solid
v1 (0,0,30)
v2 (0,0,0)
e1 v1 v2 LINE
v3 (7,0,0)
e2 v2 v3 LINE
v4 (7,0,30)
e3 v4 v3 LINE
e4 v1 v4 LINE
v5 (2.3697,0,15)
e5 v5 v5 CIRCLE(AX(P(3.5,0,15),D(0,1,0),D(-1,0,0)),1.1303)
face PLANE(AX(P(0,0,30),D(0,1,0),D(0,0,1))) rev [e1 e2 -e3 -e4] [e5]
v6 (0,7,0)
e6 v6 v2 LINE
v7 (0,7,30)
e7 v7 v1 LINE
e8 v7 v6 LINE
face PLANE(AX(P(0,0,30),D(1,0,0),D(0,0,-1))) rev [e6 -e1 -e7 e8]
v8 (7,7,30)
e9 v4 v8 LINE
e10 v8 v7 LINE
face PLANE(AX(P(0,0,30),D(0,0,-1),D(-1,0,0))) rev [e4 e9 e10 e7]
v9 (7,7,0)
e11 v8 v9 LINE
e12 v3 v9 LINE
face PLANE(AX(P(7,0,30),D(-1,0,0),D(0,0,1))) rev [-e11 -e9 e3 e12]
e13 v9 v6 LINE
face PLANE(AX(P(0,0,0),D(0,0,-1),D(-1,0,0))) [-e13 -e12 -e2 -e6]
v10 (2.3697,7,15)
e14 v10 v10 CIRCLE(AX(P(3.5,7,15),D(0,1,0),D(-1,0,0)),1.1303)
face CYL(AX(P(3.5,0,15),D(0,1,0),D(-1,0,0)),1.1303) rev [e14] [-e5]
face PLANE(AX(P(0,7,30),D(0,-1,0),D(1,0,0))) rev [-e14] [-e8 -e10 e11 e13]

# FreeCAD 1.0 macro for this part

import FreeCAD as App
import Part
import Sketcher
from FreeCAD import Vector

doc = App.newDocument("Part")
body = doc.addObject("PartDesign::Body", "Body")

# Sketch on XY plane
sketch1 = doc.addObject("Sketcher::SketchObject", "Sketch")
body.addObject(sketch1)
sketch1.AttachmentSupport = (doc.XY_Plane, [""])
sketch1.MapMode = "FlatFace"
sketch1.addGeometry(Part.LineSegment(Vector(0, 7, 0), Vector(0, 0, 0)), False)
sketch1.addGeometry(Part.LineSegment(Vector(0, 0, 0), Vector(7, 0, 0)), False)
sketch1.addGeometry(Part.LineSegment(Vector(7, 0, 0), Vector(7, 7, 0)), False)
sketch1.addGeometry(Part.LineSegment(Vector(7, 7, 0), Vector(0, 7, 0)), False)
sketch1.addConstraint(Sketcher.Constraint("Coincident", 0, 2, 1, 1))
sketch1.addConstraint(Sketcher.Constraint("Coincident", 1, 2, 2, 1))
sketch1.addConstraint(Sketcher.Constraint("Coincident", 2, 2, 3, 1))
sketch1.addConstraint(Sketcher.Constraint("Coincident", 3, 2, 0, 1))
sketch1.addConstraint(Sketcher.Constraint("Vertical", 0))
sketch1.addConstraint(Sketcher.Constraint("Horizontal", 1))
sketch1.addConstraint(Sketcher.Constraint("Vertical", 2))
sketch1.addConstraint(Sketcher.Constraint("Horizontal", 3))
sketch1.addConstraint(Sketcher.Constraint("Coincident", 0, 2, -1, 1))
sketch1.addConstraint(Sketcher.Constraint("Equal", 3, 0))
sketch1.addConstraint(Sketcher.Constraint("DistanceX", 1, 1, 1, 2, 7.0))
pad1 = doc.addObject("PartDesign::Pad", "Pad")
body.addObject(pad1)
pad1.Profile = sketch1
pad1.Length = 30

# Sketch on XZ plane
sketch2 = doc.addObject("Sketcher::SketchObject", "Sketch001")
body.addObject(sketch2)
sketch2.AttachmentSupport = (doc.XZ_Plane, [""])
sketch2.MapMode = "FlatFace"
sketch2.AttachmentOffset = App.Placement(Vector(0, 0, -7), App.Rotation())
sketch2.addGeometry(Part.Circle(Vector(3.5, 15, 0), Vector(0, 0, 1), 1.1303), False)
sketch2.addConstraint(Sketcher.Constraint("DistanceY", -1, 1, 0, 3, 15.0))
sketch2.addConstraint(Sketcher.Constraint("Diameter", 0, 2.2606))
sketch2.addConstraint(Sketcher.Constraint("DistanceX", -1, 1, 0, 3, 3.5))
pocket1 = doc.addObject("PartDesign::Pocket", "Pocket")
body.addObject(pocket1)
pocket1.Profile = sketch2
pocket1.Type = "ThroughAll"
pocket1.Reversed = True

doc.recompute()
